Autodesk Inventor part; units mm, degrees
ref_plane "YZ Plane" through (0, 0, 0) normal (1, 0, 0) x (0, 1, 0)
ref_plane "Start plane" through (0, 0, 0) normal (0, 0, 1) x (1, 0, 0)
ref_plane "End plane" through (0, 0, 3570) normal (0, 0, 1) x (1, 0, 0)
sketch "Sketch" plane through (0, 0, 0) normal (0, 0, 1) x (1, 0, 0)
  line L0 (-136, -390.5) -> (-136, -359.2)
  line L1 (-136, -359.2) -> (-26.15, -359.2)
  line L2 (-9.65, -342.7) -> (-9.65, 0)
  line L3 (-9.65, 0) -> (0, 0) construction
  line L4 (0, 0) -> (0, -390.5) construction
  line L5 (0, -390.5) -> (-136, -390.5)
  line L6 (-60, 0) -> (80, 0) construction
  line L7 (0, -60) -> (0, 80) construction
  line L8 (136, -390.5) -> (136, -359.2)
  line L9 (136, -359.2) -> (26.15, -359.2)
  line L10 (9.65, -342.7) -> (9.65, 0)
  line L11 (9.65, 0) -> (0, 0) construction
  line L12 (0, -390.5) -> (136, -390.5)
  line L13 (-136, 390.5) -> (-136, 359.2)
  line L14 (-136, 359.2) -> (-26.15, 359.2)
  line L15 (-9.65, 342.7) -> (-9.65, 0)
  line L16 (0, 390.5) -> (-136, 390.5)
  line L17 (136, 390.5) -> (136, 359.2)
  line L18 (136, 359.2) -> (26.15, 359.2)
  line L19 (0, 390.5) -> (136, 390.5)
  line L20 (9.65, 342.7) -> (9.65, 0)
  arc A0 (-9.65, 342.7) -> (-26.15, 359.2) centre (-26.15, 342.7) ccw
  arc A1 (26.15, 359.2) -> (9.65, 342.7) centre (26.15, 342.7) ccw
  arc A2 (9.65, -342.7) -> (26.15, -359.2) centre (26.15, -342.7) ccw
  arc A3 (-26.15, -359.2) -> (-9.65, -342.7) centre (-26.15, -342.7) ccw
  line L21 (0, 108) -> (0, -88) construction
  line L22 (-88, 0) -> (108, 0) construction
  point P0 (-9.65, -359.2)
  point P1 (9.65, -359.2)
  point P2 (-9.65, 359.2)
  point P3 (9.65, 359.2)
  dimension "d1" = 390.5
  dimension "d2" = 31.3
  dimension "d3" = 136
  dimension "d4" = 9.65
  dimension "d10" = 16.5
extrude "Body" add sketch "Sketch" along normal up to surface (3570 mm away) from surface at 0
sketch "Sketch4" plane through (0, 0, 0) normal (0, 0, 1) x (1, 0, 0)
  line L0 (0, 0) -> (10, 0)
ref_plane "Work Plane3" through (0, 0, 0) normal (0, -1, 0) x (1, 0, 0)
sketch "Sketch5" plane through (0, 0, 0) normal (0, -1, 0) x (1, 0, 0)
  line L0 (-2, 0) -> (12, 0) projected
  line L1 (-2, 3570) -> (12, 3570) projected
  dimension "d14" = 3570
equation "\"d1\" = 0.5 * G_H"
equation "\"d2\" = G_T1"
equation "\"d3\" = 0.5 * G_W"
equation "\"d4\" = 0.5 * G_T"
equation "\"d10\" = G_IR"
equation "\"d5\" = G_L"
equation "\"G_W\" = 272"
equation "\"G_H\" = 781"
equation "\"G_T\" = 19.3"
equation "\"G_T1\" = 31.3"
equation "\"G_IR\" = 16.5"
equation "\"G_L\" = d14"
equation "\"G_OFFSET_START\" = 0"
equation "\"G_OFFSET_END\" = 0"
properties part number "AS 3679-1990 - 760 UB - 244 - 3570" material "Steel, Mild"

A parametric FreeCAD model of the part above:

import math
import FreeCAD as App
import Part
import Sketcher
Q = App.Units.Quantity

doc = App.newDocument("Part")
params = doc.addObject("Spreadsheet::Sheet", "Params")
for row, (alias, value) in enumerate([
    ("sketch1_radius", "16.5 mm"),
    ("sketch1_height", "31.3 mm"),
    ("pad1_length", "3570 mm"),
], start=1):
    params.set(f"A{row}", alias)
    params.set(f"B{row}", "=" + value)
    params.setAlias(f"B{row}", alias)

body = doc.addObject("PartDesign::Body", "Body")

# Sketch on XY plane
sketch1 = body.newObject("Sketcher::SketchObject", "Sketch")
sketch1.AttachmentSupport = (doc.getObject("XY_Plane"), [""])
sketch1.MapMode = "FlatFace"
sketch1.addGeometry([
    Part.LineSegment(App.Vector(-136, -359, 0), App.Vector(-136, -390, 0)),  # 0
    Part.LineSegment(App.Vector(-136, -390, 0), App.Vector(136, -390, 0)),  # 1
    Part.LineSegment(App.Vector(136, -390, 0), App.Vector(136, -359, 0)),  # 2
    Part.LineSegment(App.Vector(136, -359, 0), App.Vector(26, -359, 0)),  # 3
    Part.ArcOfCircle(Part.Circle(App.Vector(26, -343, 0), App.Vector(0, 0, 1), 16), math.radians(180), math.radians(270)),  # 4
    Part.LineSegment(App.Vector(10, -343, 0), App.Vector(10, 343, 0)),  # 5
    Part.ArcOfCircle(Part.Circle(App.Vector(26, 343, 0), App.Vector(0, 0, 1), 16), math.radians(90), math.radians(180)),  # 6
    Part.LineSegment(App.Vector(26, 359, 0), App.Vector(136, 359, 0)),  # 7
    Part.LineSegment(App.Vector(136, 359, 0), App.Vector(136, 390, 0)),  # 8
    Part.LineSegment(App.Vector(136, 390, 0), App.Vector(-136, 390, 0)),  # 9
    Part.LineSegment(App.Vector(-136, 390, 0), App.Vector(-136, 359, 0)),  # 10
    Part.LineSegment(App.Vector(-136, 359, 0), App.Vector(-26, 359, 0)),  # 11
    Part.ArcOfCircle(Part.Circle(App.Vector(-26, 343, 0), App.Vector(0, 0, 1), 16), math.radians(0), math.radians(90)),  # 12
    Part.LineSegment(App.Vector(-10, 343, 0), App.Vector(-10, -343, 0)),  # 13
    Part.ArcOfCircle(Part.Circle(App.Vector(-26, -343, 0), App.Vector(0, 0, 1), 16), math.radians(-90), math.radians(0)),  # 14
    Part.LineSegment(App.Vector(-26, -359, 0), App.Vector(-136, -359, 0)),  # 15
], False)
sketch1.addConstraint([
    Sketcher.Constraint("Coincident", 0, 2, 1, 1),
    Sketcher.Constraint("Coincident", 1, 2, 2, 1),
    Sketcher.Constraint("Coincident", 2, 2, 3, 1),
    Sketcher.Constraint("Tangent", 3, 2, 4, 2),
    Sketcher.Constraint("Tangent", 4, 1, 5, 1),
    Sketcher.Constraint("Tangent", 5, 2, 6, 2),
    Sketcher.Constraint("Tangent", 6, 1, 7, 1),
    Sketcher.Constraint("Coincident", 7, 2, 8, 1),
    Sketcher.Constraint("Coincident", 8, 2, 9, 1),
    Sketcher.Constraint("Coincident", 9, 2, 10, 1),
    Sketcher.Constraint("Coincident", 10, 2, 11, 1),
    Sketcher.Constraint("Tangent", 11, 2, 12, 2),
    Sketcher.Constraint("Tangent", 12, 1, 13, 1),
    Sketcher.Constraint("Tangent", 13, 2, 14, 2),
    Sketcher.Constraint("Tangent", 14, 1, 15, 1),
    Sketcher.Constraint("Coincident", 15, 2, 0, 1),
    Sketcher.Constraint("Vertical", 0),
    Sketcher.Constraint("Horizontal", 1),
    Sketcher.Constraint("Vertical", 2),
    Sketcher.Constraint("Horizontal", 3),
    Sketcher.Constraint("Vertical", 5),
    Sketcher.Constraint("Horizontal", 7),
    Sketcher.Constraint("Vertical", 8),
    Sketcher.Constraint("Horizontal", 9),
    Sketcher.Constraint("Vertical", 10),
    Sketcher.Constraint("Horizontal", 11),
    Sketcher.Constraint("Vertical", 13),
    Sketcher.Constraint("Horizontal", 15),
    Sketcher.Constraint("Equal", 4, 6),
    Sketcher.Constraint("Equal", 6, 12),
    Sketcher.Constraint("Equal", 12, 14),
    Sketcher.Constraint("Symmetric", 4, 3, 12, 3, -1, 1),
    Sketcher.Constraint("Symmetric", 0, 2, 8, 2, -1, 1),
    Sketcher.Constraint("Symmetric", 7, 2, 10, 2, -2),
    Sketcher.Constraint("Symmetric", 2, 2, 15, 2, -2),
    Sketcher.Constraint("Radius", 4, Q("16.5 mm")),
    Sketcher.Constraint("DistanceY", 0, 2, 0, 1, Q("31.3 mm")),
    Sketcher.Constraint("DistanceX", 0, 2, -1, 1, Q("136 mm")),
    Sketcher.Constraint("DistanceY", 0, 2, -1, 1, Q("390.5 mm")),
    Sketcher.Constraint("DistanceX", -1, 1, 4, 1, Q("9.65 mm")),
])
sketch1.setExpression("Constraints[35]", "Params.sketch1_radius")
sketch1.setExpression("Constraints[36]", "Params.sketch1_height")
pad1 = body.newObject("PartDesign::Pad", "Pad")
pad1.Profile = sketch1
pad1.setExpression("Length", "Params.pad1_length")

doc.recompute()
